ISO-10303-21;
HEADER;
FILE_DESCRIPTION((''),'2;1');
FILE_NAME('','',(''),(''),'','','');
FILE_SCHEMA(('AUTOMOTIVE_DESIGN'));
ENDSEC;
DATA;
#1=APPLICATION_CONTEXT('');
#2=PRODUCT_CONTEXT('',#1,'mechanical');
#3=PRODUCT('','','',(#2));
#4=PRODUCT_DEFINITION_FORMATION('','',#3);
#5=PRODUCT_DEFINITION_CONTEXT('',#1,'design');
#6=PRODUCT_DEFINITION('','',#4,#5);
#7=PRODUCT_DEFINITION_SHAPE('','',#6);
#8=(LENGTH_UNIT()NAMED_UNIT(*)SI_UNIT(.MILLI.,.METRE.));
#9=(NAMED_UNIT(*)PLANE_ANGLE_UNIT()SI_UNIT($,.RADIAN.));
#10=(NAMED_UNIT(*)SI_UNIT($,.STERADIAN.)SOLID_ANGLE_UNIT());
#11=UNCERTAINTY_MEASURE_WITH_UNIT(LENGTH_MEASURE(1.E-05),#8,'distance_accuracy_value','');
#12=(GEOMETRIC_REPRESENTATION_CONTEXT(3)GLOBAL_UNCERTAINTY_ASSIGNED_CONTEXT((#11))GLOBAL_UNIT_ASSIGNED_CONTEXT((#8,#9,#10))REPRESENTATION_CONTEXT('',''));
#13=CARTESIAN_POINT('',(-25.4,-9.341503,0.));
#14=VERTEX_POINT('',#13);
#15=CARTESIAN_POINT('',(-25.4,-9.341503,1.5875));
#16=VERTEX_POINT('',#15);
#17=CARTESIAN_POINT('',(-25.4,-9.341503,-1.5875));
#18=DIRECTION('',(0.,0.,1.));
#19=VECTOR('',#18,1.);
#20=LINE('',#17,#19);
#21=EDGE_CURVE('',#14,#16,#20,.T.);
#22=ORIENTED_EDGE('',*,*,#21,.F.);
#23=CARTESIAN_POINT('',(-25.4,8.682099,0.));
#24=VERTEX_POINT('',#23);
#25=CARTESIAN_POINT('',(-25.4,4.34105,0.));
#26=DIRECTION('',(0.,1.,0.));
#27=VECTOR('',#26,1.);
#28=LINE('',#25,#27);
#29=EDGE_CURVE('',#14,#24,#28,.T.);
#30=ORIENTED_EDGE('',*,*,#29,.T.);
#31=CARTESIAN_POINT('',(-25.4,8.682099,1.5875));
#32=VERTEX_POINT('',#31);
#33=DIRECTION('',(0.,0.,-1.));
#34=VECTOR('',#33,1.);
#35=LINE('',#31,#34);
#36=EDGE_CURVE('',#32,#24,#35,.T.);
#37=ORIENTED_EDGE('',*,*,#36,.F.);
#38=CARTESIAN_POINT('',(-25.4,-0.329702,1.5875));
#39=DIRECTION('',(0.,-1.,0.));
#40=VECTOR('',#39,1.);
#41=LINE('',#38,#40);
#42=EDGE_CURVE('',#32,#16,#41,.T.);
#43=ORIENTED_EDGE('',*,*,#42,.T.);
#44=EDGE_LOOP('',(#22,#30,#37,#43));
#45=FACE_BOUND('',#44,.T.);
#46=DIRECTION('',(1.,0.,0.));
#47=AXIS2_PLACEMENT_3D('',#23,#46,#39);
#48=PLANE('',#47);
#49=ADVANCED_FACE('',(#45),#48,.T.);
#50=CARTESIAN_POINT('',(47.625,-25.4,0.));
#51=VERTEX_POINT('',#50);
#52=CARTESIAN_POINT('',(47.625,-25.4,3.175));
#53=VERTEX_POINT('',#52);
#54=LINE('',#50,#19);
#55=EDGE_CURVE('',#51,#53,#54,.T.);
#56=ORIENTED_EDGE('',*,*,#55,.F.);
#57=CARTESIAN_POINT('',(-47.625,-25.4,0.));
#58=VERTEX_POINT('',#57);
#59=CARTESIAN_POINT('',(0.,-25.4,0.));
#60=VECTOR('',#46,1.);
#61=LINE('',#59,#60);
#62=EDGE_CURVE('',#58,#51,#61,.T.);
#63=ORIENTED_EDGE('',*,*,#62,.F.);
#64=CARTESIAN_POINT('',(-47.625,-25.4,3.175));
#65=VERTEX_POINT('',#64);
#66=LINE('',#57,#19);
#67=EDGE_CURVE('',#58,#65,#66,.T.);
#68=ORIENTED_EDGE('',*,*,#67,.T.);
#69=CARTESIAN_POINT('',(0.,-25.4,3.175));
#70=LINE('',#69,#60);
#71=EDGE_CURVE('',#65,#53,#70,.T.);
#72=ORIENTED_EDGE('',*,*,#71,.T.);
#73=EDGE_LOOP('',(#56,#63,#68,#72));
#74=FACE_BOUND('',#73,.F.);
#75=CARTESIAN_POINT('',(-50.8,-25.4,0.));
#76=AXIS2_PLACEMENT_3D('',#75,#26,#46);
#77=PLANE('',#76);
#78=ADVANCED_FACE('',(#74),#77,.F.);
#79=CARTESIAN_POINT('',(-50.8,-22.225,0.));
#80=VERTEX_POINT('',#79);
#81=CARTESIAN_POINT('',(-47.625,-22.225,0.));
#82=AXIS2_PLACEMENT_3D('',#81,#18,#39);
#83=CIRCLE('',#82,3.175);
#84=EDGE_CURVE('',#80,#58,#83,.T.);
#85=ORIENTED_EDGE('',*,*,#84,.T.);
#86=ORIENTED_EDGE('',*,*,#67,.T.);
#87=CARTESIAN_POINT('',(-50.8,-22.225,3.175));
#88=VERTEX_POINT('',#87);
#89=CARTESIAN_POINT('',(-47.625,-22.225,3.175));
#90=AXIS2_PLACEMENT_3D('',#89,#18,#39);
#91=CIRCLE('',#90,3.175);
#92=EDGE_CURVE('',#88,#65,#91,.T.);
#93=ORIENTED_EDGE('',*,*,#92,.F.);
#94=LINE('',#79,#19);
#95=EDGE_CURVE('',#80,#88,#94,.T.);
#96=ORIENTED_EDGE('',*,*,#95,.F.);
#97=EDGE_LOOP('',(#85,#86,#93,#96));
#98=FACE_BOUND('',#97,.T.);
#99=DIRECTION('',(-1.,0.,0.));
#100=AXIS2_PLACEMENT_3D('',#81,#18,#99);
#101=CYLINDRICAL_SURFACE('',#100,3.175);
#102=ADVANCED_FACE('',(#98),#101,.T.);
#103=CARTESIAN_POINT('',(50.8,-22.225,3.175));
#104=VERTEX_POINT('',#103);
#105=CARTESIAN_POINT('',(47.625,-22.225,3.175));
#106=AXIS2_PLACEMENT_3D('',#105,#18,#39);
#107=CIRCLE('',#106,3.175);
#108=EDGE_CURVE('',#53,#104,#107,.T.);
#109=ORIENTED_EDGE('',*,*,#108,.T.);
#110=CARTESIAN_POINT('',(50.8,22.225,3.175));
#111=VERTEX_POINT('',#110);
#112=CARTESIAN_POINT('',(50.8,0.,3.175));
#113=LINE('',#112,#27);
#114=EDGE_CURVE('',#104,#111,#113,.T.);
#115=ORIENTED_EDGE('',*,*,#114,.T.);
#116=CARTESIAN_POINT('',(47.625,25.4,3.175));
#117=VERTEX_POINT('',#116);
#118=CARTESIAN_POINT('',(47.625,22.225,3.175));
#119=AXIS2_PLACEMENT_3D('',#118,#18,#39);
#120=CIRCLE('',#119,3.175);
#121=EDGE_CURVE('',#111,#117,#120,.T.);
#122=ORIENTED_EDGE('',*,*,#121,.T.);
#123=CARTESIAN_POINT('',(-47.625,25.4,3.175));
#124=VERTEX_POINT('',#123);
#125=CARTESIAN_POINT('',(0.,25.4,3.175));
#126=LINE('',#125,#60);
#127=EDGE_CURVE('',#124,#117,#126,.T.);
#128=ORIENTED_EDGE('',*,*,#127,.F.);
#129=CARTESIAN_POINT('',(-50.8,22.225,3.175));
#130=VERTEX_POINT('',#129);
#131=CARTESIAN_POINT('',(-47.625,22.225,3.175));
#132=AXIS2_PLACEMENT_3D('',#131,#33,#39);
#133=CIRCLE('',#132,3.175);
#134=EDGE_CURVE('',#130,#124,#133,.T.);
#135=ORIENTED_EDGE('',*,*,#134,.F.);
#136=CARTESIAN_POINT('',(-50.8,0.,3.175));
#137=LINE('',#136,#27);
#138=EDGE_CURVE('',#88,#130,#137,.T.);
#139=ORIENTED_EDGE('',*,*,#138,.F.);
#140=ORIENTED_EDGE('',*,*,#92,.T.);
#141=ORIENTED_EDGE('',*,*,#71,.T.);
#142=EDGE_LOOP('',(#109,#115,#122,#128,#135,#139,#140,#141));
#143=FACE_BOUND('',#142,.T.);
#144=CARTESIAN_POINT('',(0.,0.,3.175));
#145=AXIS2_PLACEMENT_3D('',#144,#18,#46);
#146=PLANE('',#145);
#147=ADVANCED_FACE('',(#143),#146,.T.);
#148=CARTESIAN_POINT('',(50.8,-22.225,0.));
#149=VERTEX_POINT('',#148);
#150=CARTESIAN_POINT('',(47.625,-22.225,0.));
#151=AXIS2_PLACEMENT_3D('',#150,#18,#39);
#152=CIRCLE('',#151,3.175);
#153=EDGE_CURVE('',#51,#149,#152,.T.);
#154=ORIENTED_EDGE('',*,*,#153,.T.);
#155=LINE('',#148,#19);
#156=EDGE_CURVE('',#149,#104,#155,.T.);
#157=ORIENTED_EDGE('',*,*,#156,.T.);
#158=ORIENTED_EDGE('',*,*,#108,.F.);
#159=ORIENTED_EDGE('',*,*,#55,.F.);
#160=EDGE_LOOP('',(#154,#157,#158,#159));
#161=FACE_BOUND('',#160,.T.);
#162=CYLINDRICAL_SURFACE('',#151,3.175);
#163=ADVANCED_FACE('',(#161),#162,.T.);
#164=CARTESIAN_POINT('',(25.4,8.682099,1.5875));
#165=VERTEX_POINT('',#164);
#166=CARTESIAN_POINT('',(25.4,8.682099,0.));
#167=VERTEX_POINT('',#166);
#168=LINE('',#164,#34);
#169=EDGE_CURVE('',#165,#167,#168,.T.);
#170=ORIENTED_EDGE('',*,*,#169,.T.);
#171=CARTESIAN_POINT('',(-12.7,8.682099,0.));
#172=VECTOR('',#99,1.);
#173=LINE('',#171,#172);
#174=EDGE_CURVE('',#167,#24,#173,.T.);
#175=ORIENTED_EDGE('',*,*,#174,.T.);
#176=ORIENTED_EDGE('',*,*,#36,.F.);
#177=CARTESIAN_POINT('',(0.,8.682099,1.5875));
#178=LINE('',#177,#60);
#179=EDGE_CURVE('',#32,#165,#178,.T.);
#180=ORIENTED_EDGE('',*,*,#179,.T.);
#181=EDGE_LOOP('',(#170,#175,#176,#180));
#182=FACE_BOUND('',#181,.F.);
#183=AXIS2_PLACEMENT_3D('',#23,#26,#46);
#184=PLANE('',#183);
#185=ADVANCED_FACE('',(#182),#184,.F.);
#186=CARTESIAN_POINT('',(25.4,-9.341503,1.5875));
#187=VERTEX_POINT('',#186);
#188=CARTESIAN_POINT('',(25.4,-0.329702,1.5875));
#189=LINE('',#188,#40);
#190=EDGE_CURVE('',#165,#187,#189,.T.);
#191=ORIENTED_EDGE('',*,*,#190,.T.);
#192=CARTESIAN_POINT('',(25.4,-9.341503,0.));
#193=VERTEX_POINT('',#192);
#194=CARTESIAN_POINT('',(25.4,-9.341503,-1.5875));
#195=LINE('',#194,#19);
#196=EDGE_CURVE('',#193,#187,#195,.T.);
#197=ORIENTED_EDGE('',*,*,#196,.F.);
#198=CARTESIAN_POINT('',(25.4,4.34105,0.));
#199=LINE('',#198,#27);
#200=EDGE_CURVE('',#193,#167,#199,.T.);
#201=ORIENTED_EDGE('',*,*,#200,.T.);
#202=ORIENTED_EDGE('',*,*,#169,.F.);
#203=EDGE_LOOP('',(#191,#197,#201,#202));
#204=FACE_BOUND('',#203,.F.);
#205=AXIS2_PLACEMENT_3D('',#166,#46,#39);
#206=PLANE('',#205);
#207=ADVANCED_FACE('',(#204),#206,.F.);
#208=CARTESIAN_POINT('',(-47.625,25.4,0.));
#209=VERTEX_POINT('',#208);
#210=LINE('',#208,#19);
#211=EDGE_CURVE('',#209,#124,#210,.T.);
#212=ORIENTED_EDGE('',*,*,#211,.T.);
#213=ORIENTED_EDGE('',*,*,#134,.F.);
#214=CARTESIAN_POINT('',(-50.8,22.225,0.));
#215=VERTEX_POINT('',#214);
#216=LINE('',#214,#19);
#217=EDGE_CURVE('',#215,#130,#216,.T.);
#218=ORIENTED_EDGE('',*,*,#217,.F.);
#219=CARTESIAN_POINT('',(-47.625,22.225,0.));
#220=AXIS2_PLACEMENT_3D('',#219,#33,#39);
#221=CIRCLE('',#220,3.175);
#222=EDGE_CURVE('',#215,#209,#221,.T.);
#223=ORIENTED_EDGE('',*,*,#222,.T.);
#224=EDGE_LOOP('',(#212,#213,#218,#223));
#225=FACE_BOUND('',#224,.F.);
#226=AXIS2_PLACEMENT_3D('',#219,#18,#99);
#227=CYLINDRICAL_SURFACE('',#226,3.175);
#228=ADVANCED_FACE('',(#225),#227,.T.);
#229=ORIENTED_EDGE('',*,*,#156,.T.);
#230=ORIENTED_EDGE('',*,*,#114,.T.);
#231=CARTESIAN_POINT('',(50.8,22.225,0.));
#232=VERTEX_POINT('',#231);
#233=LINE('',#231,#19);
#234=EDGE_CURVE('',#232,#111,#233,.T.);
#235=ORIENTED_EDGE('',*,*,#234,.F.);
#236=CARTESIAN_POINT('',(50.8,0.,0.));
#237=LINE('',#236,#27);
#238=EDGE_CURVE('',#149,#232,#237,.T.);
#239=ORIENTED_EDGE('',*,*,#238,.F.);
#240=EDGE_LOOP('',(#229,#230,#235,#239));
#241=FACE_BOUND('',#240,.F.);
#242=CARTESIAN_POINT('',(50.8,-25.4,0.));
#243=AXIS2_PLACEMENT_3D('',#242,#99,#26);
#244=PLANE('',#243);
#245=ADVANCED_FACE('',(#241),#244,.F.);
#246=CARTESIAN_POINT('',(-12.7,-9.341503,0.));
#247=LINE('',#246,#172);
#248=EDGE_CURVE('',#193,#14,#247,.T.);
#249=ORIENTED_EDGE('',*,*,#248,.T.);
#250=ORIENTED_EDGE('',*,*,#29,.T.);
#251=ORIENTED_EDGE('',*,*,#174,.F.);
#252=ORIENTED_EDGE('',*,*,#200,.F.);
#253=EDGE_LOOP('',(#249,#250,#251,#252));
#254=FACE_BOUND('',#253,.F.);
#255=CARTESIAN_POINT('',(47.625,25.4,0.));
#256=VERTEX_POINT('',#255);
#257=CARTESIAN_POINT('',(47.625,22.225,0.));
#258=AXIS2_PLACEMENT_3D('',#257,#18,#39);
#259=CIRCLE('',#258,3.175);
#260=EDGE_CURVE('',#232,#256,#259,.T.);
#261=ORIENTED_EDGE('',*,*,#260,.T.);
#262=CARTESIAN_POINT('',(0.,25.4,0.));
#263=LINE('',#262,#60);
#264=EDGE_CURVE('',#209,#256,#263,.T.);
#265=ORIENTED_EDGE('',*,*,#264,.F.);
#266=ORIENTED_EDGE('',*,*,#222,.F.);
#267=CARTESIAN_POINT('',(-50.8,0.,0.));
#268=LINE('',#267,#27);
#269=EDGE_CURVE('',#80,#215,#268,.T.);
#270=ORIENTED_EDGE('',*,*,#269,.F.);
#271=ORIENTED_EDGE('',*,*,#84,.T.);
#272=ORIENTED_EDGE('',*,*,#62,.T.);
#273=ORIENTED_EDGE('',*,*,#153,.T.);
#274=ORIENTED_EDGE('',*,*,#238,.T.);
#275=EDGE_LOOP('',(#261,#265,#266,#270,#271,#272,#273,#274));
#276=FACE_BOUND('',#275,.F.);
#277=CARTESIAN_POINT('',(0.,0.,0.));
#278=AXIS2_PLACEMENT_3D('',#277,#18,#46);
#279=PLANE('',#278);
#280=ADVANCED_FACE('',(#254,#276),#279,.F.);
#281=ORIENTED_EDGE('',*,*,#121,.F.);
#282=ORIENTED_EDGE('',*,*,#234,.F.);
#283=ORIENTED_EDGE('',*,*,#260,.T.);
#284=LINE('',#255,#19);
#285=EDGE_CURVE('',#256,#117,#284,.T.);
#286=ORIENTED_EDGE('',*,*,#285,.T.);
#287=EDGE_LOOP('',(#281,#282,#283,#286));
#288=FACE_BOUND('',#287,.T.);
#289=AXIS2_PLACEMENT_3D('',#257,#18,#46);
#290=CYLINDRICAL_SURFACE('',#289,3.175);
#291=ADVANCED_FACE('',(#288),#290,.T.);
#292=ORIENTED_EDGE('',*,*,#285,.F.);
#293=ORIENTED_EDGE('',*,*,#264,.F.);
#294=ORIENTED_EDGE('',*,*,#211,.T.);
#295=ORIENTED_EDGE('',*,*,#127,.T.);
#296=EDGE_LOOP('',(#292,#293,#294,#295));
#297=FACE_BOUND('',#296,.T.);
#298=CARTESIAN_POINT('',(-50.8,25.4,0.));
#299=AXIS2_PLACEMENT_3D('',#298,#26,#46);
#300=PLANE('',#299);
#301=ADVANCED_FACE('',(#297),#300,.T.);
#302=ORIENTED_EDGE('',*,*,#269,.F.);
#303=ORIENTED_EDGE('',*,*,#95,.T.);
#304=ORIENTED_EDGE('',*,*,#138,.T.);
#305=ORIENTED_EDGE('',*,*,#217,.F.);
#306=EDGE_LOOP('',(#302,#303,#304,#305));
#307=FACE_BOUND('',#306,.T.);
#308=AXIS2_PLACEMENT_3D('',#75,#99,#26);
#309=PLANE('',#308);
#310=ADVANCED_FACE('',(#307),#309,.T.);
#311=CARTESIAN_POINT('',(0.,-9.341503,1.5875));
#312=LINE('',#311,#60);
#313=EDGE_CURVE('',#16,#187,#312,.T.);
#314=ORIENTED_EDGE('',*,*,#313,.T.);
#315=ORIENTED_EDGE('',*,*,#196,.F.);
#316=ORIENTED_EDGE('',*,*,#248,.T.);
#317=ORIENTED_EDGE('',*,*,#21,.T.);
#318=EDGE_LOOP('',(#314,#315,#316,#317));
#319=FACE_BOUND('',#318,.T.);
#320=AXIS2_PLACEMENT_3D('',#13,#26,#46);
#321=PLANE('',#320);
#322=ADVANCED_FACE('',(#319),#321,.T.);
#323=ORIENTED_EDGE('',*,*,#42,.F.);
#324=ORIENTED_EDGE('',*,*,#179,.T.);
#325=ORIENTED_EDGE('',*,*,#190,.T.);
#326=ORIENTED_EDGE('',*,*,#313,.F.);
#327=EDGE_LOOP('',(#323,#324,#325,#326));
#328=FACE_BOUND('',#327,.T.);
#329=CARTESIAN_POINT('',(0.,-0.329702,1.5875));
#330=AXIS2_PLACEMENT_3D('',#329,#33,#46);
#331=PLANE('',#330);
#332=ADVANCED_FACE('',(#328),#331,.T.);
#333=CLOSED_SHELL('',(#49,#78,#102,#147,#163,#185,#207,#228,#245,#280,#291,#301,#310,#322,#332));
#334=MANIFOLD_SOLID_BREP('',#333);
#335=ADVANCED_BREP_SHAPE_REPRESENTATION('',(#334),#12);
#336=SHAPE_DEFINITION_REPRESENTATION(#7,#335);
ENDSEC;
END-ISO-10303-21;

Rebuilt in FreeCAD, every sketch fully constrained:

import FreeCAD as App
import Part
import Sketcher

V = App.Vector
Q = App.Units.Quantity


def edges_at(feature, points):
    """Names of the edges that pass closest to the given points."""
    edges = feature.Shape.Edges
    near = lambda p: min(range(len(edges)), key=lambda i: edges[i].distToShape(Part.Vertex(*p))[0])
    return sorted({f"Edge{near(p) + 1}" for p in points})

doc = App.newDocument("Part")
body = doc.addObject("PartDesign::Body", "Body")

# Sketch on XY plane
sketch1 = body.newObject("Sketcher::SketchObject", "Sketch")
sketch1.AttachmentSupport = (doc.getObject("XY_Plane"), [""])
sketch1.MapMode = "FlatFace"
sketch1.addGeometry([
    Part.LineSegment(V(-51, 25, 0), V(-51, -25, 0)),
    Part.LineSegment(V(-51, -25, 0), V(51, -25, 0)),
    Part.LineSegment(V(51, -25, 0), V(51, 25, 0)),
    Part.LineSegment(V(51, 25, 0), V(-51, 25, 0)),
], False)
sketch1.addConstraint([
    Sketcher.Constraint("Coincident", 0, 2, 1, 1),
    Sketcher.Constraint("Coincident", 1, 2, 2, 1),
    Sketcher.Constraint("Coincident", 2, 2, 3, 1),
    Sketcher.Constraint("Coincident", 3, 2, 0, 1),
    Sketcher.Constraint("Vertical", 0),
    Sketcher.Constraint("Horizontal", 1),
    Sketcher.Constraint("Vertical", 2),
    Sketcher.Constraint("Horizontal", 3),
    Sketcher.Constraint("Symmetric", 0, 2, 2, 2, -1, 1),
    Sketcher.Constraint("DistanceX", 1, 1, 1, 2, Q("4 in")),
    Sketcher.Constraint("DistanceY", 0, 2, 0, 1, Q("2 in")),
])
pad1 = body.newObject("PartDesign::Pad", "Pad")
pad1.Profile = sketch1
pad1.Length = Q("0.125 in")
doc.recompute()

fillet = body.newObject("PartDesign::Fillet", "Fillet")
fillet.Base = (pad1, edges_at(pad1, [
    (-50.8, 25.4, 1.587),
    (50.8, 25.4, 1.587),
    (50.8, -25.4, 1.587),
    (-50.8, -25.4, 1.587),
]))
fillet.Radius = Q("0.125 in")

# Sketch on XY plane
sketch2 = body.newObject("Sketcher::SketchObject", "Sketch001")
sketch2.AttachmentSupport = (doc.getObject("XY_Plane"), [""])
sketch2.MapMode = "FlatFace"
sketch2.addGeometry([
    Part.LineSegment(V(-25, -9, 0), V(-25, 9, 0)),
    Part.LineSegment(V(-25, 9, 0), V(25, 9, 0)),
    Part.LineSegment(V(25, 9, 0), V(25, -9, 0)),
    Part.LineSegment(V(25, -9, 0), V(-25, -9, 0)),
], False)
sketch2.addConstraint([
    Sketcher.Constraint("Coincident", 0, 2, 1, 1),
    Sketcher.Constraint("Coincident", 1, 2, 2, 1),
    Sketcher.Constraint("Coincident", 2, 2, 3, 1),
    Sketcher.Constraint("Coincident", 3, 2, 0, 1),
    Sketcher.Constraint("Vertical", 0),
    Sketcher.Constraint("Horizontal", 1),
    Sketcher.Constraint("Vertical", 2),
    Sketcher.Constraint("Horizontal", 3),
    Sketcher.Constraint("DistanceX", 1, 1, 1, 2, Q("2 in")),
    Sketcher.Constraint("DistanceX", 0, 2, -1, 1, Q("1 in")),
    Sketcher.Constraint("DistanceY", -1, 1, 0, 2, Q("8.682099 mm")),
    Sketcher.Constraint("DistanceY", 0, 1, 0, 2, Q("18.023603 mm")),
])
pocket1 = body.newObject("PartDesign::Pocket", "Pocket")
pocket1.Profile = sketch2
pocket1.Length = Q("0.125 in")
pocket1.Midplane = True

doc.recompute()
